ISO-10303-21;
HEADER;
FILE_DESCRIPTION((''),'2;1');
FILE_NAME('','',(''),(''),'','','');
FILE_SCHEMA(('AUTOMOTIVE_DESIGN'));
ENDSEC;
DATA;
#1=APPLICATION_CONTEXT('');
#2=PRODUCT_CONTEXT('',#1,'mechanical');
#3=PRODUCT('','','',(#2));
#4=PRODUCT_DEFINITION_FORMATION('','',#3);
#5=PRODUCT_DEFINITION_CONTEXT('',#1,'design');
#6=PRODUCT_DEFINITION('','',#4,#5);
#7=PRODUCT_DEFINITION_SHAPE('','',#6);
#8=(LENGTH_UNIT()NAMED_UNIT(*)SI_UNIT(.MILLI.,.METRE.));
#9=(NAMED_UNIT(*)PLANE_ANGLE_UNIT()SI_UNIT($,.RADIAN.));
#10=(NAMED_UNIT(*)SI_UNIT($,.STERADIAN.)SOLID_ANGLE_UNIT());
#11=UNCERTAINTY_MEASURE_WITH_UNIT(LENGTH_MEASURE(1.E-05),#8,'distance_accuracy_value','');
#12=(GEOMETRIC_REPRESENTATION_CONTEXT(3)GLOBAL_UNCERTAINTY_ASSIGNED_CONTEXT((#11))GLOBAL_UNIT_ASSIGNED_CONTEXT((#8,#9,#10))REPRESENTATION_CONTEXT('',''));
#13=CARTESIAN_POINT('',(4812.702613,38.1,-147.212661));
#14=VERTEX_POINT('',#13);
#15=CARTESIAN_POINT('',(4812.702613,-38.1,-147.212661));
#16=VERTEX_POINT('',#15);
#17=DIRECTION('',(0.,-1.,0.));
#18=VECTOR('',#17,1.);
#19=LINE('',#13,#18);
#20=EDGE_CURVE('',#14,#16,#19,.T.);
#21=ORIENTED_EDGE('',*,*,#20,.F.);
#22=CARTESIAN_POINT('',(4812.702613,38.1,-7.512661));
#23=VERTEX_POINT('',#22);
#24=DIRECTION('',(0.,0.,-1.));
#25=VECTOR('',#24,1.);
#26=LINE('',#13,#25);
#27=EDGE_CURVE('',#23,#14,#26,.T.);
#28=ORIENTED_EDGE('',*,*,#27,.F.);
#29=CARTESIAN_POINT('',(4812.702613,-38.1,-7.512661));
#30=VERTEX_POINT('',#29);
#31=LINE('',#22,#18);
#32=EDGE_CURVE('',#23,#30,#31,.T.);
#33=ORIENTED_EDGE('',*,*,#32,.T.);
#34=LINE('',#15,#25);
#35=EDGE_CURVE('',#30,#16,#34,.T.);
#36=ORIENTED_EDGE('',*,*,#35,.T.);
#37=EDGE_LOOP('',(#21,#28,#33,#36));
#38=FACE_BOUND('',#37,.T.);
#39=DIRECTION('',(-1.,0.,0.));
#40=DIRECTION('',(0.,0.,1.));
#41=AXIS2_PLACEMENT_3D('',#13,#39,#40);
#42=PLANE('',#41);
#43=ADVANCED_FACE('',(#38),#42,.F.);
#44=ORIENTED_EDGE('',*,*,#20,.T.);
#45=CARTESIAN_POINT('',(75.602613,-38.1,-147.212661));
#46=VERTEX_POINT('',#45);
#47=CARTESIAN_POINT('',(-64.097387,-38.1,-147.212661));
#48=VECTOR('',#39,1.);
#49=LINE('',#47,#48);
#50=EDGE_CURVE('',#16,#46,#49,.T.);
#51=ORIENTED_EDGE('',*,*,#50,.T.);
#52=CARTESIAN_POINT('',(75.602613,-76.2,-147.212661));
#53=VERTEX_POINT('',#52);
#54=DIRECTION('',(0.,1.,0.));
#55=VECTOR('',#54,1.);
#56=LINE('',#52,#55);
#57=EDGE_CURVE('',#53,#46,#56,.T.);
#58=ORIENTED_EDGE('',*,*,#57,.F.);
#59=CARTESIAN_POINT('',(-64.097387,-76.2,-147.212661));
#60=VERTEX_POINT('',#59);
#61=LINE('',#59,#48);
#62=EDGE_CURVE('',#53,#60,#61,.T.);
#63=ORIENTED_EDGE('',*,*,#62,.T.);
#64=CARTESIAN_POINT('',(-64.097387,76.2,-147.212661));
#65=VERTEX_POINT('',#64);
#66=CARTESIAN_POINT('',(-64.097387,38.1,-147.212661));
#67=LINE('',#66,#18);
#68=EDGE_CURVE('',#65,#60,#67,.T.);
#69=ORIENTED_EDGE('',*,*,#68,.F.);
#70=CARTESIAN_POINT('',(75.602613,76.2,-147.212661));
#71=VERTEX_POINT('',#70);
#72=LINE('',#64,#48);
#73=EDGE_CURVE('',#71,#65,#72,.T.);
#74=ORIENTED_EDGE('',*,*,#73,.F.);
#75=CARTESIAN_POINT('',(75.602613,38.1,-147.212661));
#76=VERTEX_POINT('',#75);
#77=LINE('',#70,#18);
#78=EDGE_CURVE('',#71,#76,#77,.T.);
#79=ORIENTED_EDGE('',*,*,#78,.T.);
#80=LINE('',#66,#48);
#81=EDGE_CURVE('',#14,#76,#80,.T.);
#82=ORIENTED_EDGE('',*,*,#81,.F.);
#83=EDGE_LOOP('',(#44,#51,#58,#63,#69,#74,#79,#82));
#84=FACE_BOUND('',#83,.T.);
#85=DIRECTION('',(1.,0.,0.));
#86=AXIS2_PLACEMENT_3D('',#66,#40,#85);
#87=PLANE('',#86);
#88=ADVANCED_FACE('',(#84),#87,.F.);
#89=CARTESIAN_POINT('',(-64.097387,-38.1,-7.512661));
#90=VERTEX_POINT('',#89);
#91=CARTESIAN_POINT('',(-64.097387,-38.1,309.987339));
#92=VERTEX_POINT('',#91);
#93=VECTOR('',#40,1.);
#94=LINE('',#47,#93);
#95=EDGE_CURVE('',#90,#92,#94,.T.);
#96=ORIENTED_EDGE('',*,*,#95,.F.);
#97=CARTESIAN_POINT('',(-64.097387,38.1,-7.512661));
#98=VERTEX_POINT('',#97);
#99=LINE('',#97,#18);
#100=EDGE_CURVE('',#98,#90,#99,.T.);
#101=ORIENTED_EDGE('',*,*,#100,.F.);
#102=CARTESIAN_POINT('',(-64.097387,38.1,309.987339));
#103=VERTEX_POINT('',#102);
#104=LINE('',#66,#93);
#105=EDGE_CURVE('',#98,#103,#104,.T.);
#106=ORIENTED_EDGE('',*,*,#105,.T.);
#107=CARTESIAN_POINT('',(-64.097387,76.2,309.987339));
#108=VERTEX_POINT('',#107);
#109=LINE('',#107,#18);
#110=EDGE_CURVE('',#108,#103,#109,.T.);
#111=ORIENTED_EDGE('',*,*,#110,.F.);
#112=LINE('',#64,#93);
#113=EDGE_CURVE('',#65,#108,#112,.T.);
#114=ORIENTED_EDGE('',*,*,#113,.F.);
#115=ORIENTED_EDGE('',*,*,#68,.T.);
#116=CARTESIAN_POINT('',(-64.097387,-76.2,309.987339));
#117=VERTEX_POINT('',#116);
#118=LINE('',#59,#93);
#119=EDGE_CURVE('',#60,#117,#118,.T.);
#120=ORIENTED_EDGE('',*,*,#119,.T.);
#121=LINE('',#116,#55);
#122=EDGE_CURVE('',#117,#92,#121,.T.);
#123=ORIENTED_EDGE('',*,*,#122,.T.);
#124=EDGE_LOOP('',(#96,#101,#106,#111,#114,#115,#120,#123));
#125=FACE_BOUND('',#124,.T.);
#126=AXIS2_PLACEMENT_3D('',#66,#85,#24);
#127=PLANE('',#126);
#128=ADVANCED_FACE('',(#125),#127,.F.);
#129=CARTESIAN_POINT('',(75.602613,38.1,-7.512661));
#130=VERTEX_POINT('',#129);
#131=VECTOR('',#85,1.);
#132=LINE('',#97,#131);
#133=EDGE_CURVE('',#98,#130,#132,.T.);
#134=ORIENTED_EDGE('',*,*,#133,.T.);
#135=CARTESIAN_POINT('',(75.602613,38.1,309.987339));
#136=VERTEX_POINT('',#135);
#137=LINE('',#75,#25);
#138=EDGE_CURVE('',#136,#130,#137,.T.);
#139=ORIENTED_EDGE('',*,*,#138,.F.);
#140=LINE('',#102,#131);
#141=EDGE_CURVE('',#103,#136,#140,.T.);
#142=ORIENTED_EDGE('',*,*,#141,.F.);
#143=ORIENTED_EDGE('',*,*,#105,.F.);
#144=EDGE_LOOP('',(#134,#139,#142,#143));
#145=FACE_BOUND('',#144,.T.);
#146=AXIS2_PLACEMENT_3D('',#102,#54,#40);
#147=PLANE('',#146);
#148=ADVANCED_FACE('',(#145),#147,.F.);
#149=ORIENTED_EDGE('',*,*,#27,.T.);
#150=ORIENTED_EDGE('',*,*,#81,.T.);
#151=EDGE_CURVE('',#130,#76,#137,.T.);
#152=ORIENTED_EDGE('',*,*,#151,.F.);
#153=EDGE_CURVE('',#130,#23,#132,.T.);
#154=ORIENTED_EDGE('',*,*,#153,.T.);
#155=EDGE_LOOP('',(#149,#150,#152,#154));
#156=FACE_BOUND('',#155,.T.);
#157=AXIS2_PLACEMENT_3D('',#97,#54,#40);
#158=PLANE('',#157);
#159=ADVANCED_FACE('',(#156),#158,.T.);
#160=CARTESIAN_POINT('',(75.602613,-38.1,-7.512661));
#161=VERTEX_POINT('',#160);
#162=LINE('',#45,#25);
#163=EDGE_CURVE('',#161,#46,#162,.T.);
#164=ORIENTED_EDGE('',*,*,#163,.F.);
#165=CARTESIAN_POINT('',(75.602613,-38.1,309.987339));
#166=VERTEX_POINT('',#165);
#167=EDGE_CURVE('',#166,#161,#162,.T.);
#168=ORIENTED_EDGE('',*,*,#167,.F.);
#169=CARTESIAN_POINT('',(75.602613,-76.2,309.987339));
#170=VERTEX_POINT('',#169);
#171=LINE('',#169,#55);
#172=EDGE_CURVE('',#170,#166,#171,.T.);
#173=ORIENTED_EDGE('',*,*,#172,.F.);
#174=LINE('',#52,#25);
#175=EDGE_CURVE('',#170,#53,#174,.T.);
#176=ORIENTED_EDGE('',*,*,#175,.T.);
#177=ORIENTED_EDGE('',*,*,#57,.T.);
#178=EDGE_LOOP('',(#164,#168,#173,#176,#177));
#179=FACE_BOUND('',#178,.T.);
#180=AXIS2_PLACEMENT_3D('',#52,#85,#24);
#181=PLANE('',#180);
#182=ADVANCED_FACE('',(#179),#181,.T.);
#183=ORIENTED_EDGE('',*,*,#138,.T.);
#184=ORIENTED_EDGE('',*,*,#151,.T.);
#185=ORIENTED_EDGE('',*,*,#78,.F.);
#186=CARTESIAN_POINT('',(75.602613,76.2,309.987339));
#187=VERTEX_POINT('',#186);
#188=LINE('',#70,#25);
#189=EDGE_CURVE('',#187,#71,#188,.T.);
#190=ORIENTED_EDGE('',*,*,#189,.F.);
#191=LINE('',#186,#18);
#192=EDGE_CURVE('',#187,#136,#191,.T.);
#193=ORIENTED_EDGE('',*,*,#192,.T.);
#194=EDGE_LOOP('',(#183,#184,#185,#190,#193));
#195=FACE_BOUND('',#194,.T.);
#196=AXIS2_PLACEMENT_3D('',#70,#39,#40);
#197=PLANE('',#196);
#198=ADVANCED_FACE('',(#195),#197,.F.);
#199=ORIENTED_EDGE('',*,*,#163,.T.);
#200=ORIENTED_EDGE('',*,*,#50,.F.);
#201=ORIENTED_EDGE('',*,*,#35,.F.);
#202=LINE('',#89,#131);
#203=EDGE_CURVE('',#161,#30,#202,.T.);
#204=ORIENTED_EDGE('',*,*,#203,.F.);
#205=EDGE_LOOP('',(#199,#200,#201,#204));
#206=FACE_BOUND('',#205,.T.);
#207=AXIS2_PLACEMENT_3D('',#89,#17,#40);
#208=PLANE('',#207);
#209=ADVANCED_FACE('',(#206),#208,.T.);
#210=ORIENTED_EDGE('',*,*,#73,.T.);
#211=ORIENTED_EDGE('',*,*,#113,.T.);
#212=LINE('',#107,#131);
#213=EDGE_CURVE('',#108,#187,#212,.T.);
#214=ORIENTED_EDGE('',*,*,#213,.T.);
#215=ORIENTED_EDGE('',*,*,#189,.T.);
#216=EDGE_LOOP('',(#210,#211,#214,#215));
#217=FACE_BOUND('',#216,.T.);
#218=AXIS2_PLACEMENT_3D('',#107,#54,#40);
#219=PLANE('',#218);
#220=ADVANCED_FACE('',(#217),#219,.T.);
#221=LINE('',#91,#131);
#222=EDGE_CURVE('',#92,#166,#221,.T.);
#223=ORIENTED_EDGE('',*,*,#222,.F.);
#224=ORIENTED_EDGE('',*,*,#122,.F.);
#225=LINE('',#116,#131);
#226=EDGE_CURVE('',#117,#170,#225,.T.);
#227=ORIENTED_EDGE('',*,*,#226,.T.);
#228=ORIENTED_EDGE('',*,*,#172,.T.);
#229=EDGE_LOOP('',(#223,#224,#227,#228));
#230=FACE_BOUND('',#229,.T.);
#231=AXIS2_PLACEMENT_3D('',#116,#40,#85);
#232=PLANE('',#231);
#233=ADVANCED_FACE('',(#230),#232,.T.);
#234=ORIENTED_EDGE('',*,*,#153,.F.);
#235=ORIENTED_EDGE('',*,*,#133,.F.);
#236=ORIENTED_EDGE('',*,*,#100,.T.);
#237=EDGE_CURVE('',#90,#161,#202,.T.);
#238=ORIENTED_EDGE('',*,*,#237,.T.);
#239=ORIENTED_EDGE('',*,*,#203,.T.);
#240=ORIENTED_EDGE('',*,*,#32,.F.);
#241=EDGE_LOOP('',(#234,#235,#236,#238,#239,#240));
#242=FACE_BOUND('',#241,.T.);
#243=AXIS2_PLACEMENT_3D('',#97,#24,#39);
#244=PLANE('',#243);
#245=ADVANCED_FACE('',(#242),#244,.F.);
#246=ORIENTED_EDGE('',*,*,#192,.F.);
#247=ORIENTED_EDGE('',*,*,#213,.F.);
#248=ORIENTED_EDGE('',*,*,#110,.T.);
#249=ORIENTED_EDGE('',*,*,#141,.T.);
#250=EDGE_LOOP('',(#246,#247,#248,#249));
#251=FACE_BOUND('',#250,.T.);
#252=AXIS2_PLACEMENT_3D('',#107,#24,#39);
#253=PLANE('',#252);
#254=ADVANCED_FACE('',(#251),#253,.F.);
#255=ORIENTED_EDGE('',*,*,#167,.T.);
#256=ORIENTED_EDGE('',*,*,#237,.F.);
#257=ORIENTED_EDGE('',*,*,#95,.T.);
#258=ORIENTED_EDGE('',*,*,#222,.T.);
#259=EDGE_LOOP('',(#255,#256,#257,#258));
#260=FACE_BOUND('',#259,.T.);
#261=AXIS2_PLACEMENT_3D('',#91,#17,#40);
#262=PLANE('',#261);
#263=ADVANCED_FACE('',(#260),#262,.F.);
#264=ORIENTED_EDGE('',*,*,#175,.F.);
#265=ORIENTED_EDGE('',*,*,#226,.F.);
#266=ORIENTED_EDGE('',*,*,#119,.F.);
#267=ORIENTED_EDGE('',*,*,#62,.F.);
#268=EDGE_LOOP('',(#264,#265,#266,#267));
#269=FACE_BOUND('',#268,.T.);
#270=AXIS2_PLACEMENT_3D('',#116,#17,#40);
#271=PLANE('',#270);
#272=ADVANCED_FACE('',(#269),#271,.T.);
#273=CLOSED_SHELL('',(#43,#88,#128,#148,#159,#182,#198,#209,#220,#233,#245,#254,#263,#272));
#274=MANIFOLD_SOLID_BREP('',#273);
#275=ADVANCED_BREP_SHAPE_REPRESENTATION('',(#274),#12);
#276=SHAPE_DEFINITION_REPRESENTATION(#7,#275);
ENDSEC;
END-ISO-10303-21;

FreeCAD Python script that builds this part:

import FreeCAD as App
import Part
import Sketcher
Q = App.Units.Quantity

doc = App.newDocument("Part")
params = doc.addObject("Spreadsheet::Sheet", "Params")
for row, (alias, value) in enumerate([
    ("sketch1_width", "192 in"),
    ("sketch1_height", "5.5 in"),
    ("pad1_length", "1.5 in"),
    ("sketch2_height", "18 in"),
    ("sketch2_width", "5.5 in"),
    ("pad2_length", "1.5 in"),
], start=1):
    params.set(f"A{row}", alias)
    params.set(f"B{row}", "=" + value)
    params.setAlias(f"B{row}", alias)

body = doc.addObject("PartDesign::Body", "Body")

sketch1 = body.newObject("Sketcher::SketchObject", "Sketch")
sketch1.AttachmentSupport = (doc.getObject("XZ_Plane"), [""])
sketch1.MapMode = "FlatFace"
sketch1.addGeometry([
    Part.LineSegment(App.Vector(-64, -147, 0), App.Vector(-64, -8, 0)),
    Part.LineSegment(App.Vector(-64, -8, 0), App.Vector(4813, -8, 0)),
    Part.LineSegment(App.Vector(4813, -8, 0), App.Vector(4813, -147, 0)),
    Part.LineSegment(App.Vector(4813, -147, 0), App.Vector(-64, -147, 0)),
], False)
sketch1.addConstraint([
    Sketcher.Constraint("Coincident", 0, 2, 1, 1),
    Sketcher.Constraint("Coincident", 1, 2, 2, 1),
    Sketcher.Constraint("Coincident", 2, 2, 3, 1),
    Sketcher.Constraint("Coincident", 3, 2, 0, 1),
    Sketcher.Constraint("Vertical", 0),
    Sketcher.Constraint("Horizontal", 1),
    Sketcher.Constraint("Vertical", 2),
    Sketcher.Constraint("Horizontal", 3),
    Sketcher.Constraint("DistanceX", 1, 1, 1, 2, Q("192 in")),
    Sketcher.Constraint("DistanceY", 0, 1, 0, 2, Q("5.5 in")),
    Sketcher.Constraint("DistanceY", 0, 2, -1, 1, Q("7.512661 mm")),
    Sketcher.Constraint("DistanceX", 0, 2, -1, 1, Q("64.097387 mm")),
])
sketch1.setExpression("Constraints[8]", "Params.sketch1_width")
sketch1.setExpression("Constraints[9]", "Params.sketch1_height")
pad1 = body.newObject("PartDesign::Pad", "Pad")
pad1.Profile = sketch1
pad1.setExpression("Length", "Params.pad1_length")
pad1.Reversed = True

sketch2 = body.newObject("Sketcher::SketchObject", "Sketch001")
sketch2.AttachmentSupport = (doc.getObject("XZ_Plane"), [""])
sketch2.MapMode = "FlatFace"
sketch2.AttachmentOffset = App.Placement(App.Vector(0, 0, -1.5 * 25.4), App.Rotation())
sketch2.addGeometry([
    Part.LineSegment(App.Vector(-64, -147, 0), App.Vector(-64, 310, 0)),
    Part.LineSegment(App.Vector(-64, 310, 0), App.Vector(76, 310, 0)),
    Part.LineSegment(App.Vector(76, 310, 0), App.Vector(76, -147, 0)),
    Part.LineSegment(App.Vector(76, -147, 0), App.Vector(-64, -147, 0)),
], False)
sketch2.addConstraint([
    Sketcher.Constraint("Coincident", 0, 2, 1, 1),
    Sketcher.Constraint("Coincident", 1, 2, 2, 1),
    Sketcher.Constraint("Coincident", 2, 2, 3, 1),
    Sketcher.Constraint("Coincident", 3, 2, 0, 1),
    Sketcher.Constraint("Vertical", 0),
    Sketcher.Constraint("Horizontal", 1),
    Sketcher.Constraint("Vertical", 2),
    Sketcher.Constraint("Horizontal", 3),
    Sketcher.Constraint("DistanceY", 0, 1, 0, 2, Q("18 in")),
    Sketcher.Constraint("DistanceX", 1, 1, 1, 2, Q("5.5 in")),
    Sketcher.Constraint("DistanceY", -1, 1, 0, 2, Q("309.987339 mm")),
    Sketcher.Constraint("DistanceX", 0, 2, -1, 1, Q("64.097387 mm")),
])
sketch2.setExpression("Constraints[8]", "Params.sketch2_height")
sketch2.setExpression("Constraints[9]", "Params.sketch2_width")
pad2 = body.newObject("PartDesign::Pad", "Pad001")
pad2.Profile = sketch2
pad2.setExpression("Length", "Params.pad2_length")
pad2.Reversed = True
doc.recompute()

mirrored = body.newObject("PartDesign::Mirrored", "Mirrored")
mirrored.Originals = [pad1, pad2]
mirrored.MirrorPlane = (doc.getObject("XZ_Plane"), [""])
body.Tip = mirrored

doc.recompute()
